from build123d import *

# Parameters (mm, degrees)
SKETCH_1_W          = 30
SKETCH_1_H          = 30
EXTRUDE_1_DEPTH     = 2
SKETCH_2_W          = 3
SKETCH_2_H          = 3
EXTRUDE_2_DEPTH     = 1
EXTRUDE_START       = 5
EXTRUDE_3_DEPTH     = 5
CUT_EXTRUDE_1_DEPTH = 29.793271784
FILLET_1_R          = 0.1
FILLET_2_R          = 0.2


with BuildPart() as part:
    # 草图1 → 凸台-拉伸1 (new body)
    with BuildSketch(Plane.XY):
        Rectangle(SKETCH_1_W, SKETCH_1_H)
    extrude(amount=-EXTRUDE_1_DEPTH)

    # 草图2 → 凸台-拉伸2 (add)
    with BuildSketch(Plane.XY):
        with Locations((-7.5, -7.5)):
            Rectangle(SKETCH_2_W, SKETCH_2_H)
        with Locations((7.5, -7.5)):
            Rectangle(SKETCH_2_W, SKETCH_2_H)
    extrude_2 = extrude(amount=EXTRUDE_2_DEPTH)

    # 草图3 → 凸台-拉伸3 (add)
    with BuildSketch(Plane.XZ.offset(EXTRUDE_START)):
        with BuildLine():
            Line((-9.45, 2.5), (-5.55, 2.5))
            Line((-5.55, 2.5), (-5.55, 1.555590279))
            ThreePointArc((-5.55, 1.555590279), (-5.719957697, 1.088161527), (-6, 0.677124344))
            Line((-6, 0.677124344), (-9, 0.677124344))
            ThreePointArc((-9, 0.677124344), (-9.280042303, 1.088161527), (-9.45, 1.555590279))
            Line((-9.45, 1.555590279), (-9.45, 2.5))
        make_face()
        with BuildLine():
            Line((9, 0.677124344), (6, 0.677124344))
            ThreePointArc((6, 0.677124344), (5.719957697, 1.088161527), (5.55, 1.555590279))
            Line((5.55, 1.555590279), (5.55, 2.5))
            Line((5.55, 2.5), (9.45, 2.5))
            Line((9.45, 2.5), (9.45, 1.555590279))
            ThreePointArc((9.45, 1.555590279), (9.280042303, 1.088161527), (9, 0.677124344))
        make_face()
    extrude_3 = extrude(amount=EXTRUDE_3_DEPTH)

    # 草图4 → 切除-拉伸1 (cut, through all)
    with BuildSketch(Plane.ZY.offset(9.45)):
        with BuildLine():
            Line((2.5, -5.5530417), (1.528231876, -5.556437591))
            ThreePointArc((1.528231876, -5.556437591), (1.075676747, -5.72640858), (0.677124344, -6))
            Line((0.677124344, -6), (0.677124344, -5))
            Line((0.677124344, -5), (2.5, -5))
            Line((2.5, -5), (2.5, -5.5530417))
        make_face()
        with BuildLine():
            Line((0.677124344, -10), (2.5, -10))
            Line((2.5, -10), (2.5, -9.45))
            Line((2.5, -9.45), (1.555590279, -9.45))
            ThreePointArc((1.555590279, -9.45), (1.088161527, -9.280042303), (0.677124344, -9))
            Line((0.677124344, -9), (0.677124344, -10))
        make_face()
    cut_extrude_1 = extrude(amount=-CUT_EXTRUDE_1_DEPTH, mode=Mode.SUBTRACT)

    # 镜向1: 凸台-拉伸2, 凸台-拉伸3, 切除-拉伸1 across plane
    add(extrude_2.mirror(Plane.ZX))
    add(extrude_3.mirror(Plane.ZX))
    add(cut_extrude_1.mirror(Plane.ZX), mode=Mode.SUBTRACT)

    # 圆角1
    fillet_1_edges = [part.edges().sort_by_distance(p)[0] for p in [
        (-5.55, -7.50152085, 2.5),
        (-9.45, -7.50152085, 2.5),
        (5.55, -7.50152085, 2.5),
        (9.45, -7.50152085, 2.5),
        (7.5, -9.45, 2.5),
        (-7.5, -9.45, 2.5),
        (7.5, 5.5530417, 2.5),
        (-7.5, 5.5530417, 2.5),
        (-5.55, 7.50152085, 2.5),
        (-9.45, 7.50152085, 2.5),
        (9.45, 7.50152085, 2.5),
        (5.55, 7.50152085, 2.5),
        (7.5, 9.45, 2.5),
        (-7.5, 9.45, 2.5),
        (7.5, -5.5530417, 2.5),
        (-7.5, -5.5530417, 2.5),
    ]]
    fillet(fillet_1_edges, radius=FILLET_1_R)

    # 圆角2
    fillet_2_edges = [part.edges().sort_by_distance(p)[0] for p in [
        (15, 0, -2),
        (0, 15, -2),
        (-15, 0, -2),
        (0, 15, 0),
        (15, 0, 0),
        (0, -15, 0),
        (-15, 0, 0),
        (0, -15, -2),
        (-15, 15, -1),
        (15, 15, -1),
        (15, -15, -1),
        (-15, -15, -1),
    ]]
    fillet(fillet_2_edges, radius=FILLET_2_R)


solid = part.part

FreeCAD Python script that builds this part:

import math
import FreeCAD as App
import Part
import Sketcher
Q = App.Units.Quantity


def edges_at(feature, points):
    """Names of the edges that pass closest to the given points."""
    edges = feature.Shape.Edges
    near = lambda p: min(range(len(edges)), key=lambda i: edges[i].distToShape(Part.Vertex(*p))[0])
    return sorted({f"Edge{near(p) + 1}" for p in points})


def add_polygon(sketch, points):
    """Adds a closed chain of lines whose ends are joined by coincident constraints."""
    first, n = sketch.GeometryCount, len(points)
    for a, b in zip(points, points[1:] + points[:1]):
        sketch.addGeometry(Part.LineSegment(App.Vector(*a, 0), App.Vector(*b, 0)), False)
    for i in range(n):
        sketch.addConstraint(Sketcher.Constraint("Coincident", first + i, 2, first + (i + 1) % n, 1))

doc = App.newDocument("Part")
body = doc.addObject("PartDesign::Body", "Body")

# Sketch on XY plane
sketch1 = body.newObject("Sketcher::SketchObject", "Sketch")
sketch1.AttachmentSupport = (doc.getObject("XY_Plane"), [""])
sketch1.MapMode = "FlatFace"
add_polygon(sketch1, [(-15, 15), (-15, -15), (15, -15), (15, 15)])  # lines 0-3
sketch1.addConstraint([
    Sketcher.Constraint("Vertical", 0),
    Sketcher.Constraint("Horizontal", 1),
    Sketcher.Constraint("Vertical", 2),
    Sketcher.Constraint("Horizontal", 3),
    Sketcher.Constraint("Symmetric", 0, 2, 2, 2, -1, 1),
    Sketcher.Constraint("Equal", 3, 0),
    Sketcher.Constraint("DistanceX", 1, 1, 1, 2, Q("30 mm")),
])
pad1 = body.newObject("PartDesign::Pad", "Pad")
pad1.Profile = sketch1
pad1.Length = 2
pad1.Reversed = True

# Sketch on XY plane
sketch2 = body.newObject("Sketcher::SketchObject", "Sketch001")
sketch2.AttachmentSupport = (doc.getObject("XY_Plane"), [""])
sketch2.MapMode = "FlatFace"
add_polygon(sketch2, [(-9, -6), (-9, -9), (-6, -9), (-6, -6)])  # lines 0-3
add_polygon(sketch2, [(6, -6), (6, -9), (9, -9), (9, -6)])  # lines 4-7
sketch2.addConstraint([
    Sketcher.Constraint("Vertical", 0),
    Sketcher.Constraint("Horizontal", 1),
    Sketcher.Constraint("Vertical", 2),
    Sketcher.Constraint("Horizontal", 3),
    Sketcher.Constraint("Vertical", 4),
    Sketcher.Constraint("Horizontal", 5),
    Sketcher.Constraint("Vertical", 6),
    Sketcher.Constraint("Horizontal", 7),
    Sketcher.Constraint("Symmetric", 1, 2, 4, 2, -2),
    Sketcher.Constraint("Symmetric", 3, 2, 6, 2, -2),
    Sketcher.Constraint("Equal", 7, 0),
    Sketcher.Constraint("DistanceX", 1, 1, 1, 2, Q("3 mm")),
    Sketcher.Constraint("DistanceX", 0, 2, -1, 1, Q("9 mm")),
    Sketcher.Constraint("DistanceY", 0, 2, -1, 1, Q("9 mm")),
])
pad2 = body.newObject("PartDesign::Pad", "Pad001")
pad2.Profile = sketch2
pad2.Length = 1

# Sketch on XZ plane
sketch3 = body.newObject("Sketcher::SketchObject", "Sketch002")
sketch3.AttachmentSupport = (doc.getObject("XZ_Plane"), [""])
sketch3.MapMode = "FlatFace"
sketch3.AttachmentOffset = App.Placement(App.Vector(0, 0, 5), App.Rotation())
sketch3.addGeometry([
    Part.LineSegment(App.Vector(-5.55, 2.5, 0), App.Vector(-9.45, 2.5, 0)),  # 0
    Part.LineSegment(App.Vector(-9.45, 2.5, 0), App.Vector(-9.45, 1.55559, 0)),  # 1
    Part.ArcOfCircle(Part.Circle(App.Vector(-7.5, 2, 0), App.Vector(0, 0, 1), 2), math.radians(-167.161432), math.radians(-138.590378)),  # 2
    Part.LineSegment(App.Vector(-9, 0.677124, 0), App.Vector(-6, 0.677124, 0)),  # 3
    Part.ArcOfCircle(Part.Circle(App.Vector(-7.5, 2, 0), App.Vector(0, 0, 1), 2), math.radians(-41.409622), math.radians(-12.838568)),  # 4
    Part.LineSegment(App.Vector(-5.55, 1.55559, 0), App.Vector(-5.55, 2.5, 0)),  # 5
    Part.LineSegment(App.Vector(6, 0.677124, 0), App.Vector(9, 0.677124, 0)),  # 6
    Part.ArcOfCircle(Part.Circle(App.Vector(7.5, 2, 0), App.Vector(0, 0, 1), 2), math.radians(-41.409622), math.radians(-12.838568)),  # 7
    Part.LineSegment(App.Vector(9.45, 1.55559, 0), App.Vector(9.45, 2.5, 0)),  # 8
    Part.LineSegment(App.Vector(9.45, 2.5, 0), App.Vector(5.55, 2.5, 0)),  # 9
    Part.LineSegment(App.Vector(5.55, 2.5, 0), App.Vector(5.55, 1.55559, 0)),  # 10
    Part.ArcOfCircle(Part.Circle(App.Vector(7.5, 2, 0), App.Vector(0, 0, 1), 2), math.radians(-167.161432), math.radians(-138.590378)),  # 11
], False)
sketch3.addConstraint([
    Sketcher.Constraint("Coincident", 0, 2, 1, 1),
    Sketcher.Constraint("Coincident", 1, 2, 2, 1),
    Sketcher.Constraint("Coincident", 2, 2, 3, 1),
    Sketcher.Constraint("Coincident", 3, 2, 4, 1),
    Sketcher.Constraint("Coincident", 4, 2, 5, 1),
    Sketcher.Constraint("Coincident", 5, 2, 0, 1),
    Sketcher.Constraint("Coincident", 6, 2, 7, 1),
    Sketcher.Constraint("Coincident", 7, 2, 8, 1),
    Sketcher.Constraint("Coincident", 8, 2, 9, 1),
    Sketcher.Constraint("Coincident", 9, 2, 10, 1),
    Sketcher.Constraint("Coincident", 10, 2, 11, 1),
    Sketcher.Constraint("Coincident", 11, 2, 6, 1),
    Sketcher.Constraint("Horizontal", 0),
    Sketcher.Constraint("Vertical", 1),
    Sketcher.Constraint("Horizontal", 3),
    Sketcher.Constraint("Vertical", 5),
    Sketcher.Constraint("Horizontal", 6),
    Sketcher.Constraint("Vertical", 8),
    Sketcher.Constraint("Horizontal", 9),
    Sketcher.Constraint("Vertical", 10),
    Sketcher.Constraint("Coincident", 4, 3, 2, 3),
    Sketcher.Constraint("Coincident", 11, 3, 7, 3),
    Sketcher.Constraint("Equal", 2, 4),
    Sketcher.Constraint("Equal", 4, 7),
    Sketcher.Constraint("Equal", 7, 11),
    Sketcher.Constraint("Symmetric", 2, 3, 7, 3, -2),
    Sketcher.Constraint("Symmetric", 0, 2, 8, 2, -2),
    Sketcher.Constraint("Horizontal", 1, 2, 4, 2),
    Sketcher.Constraint("Horizontal", 3, 2, 6, 2),
    Sketcher.Constraint("Horizontal", 7, 2, 10, 2),
    Sketcher.Constraint("Radius", 2, Q("2 mm")),
    Sketcher.Constraint("DistanceX", 3, 1, 3, 2, Q("3 mm")),
    Sketcher.Constraint("DistanceX", 0, 2, 0, 1, Q("3.9 mm")),
    Sketcher.Constraint("DistanceY", -1, 1, 2, 3, Q("2 mm")),
    Sketcher.Constraint("DistanceX", 2, 2, -1, 1, Q("9 mm")),
    Sketcher.Constraint("DistanceY", -1, 1, 0, 2, Q("2.5 mm")),
])
pad3 = body.newObject("PartDesign::Pad", "Pad002")
pad3.Profile = sketch3
pad3.Length = 5

# Sketch on YZ plane
sketch4 = body.newObject("Sketcher::SketchObject", "Sketch003")
sketch4.AttachmentSupport = (doc.getObject("YZ_Plane"), [""])
sketch4.MapMode = "FlatFace"
sketch4.AttachmentOffset = App.Placement(App.Vector(0, 0, -9.45), App.Rotation())
sketch4.addGeometry([
    Part.LineSegment(App.Vector(-5.556438, 1.528232, 0), App.Vector(-5.553042, 2.5, 0)),  # 0
    Part.LineSegment(App.Vector(-5.553042, 2.5, 0), App.Vector(-5, 2.5, 0)),  # 1
    Part.LineSegment(App.Vector(-5, 2.5, 0), App.Vector(-5, 0.677124, 0)),  # 2
    Part.LineSegment(App.Vector(-5, 0.677124, 0), App.Vector(-6, 0.677124, 0)),  # 3
    Part.ArcOfCircle(Part.Circle(App.Vector(-7.5, 2, 0), App.Vector(0, 0, 1), 2), math.radians(-41.409622), math.radians(-13.643741)),  # 4
    Part.LineSegment(App.Vector(-10, 0.677124, 0), App.Vector(-10, 2.5, 0)),  # 5
    Part.LineSegment(App.Vector(-10, 2.5, 0), App.Vector(-9.45, 2.5, 0)),  # 6
    Part.LineSegment(App.Vector(-9.45, 2.5, 0), App.Vector(-9.45, 1.55559, 0)),  # 7
    Part.ArcOfCircle(Part.Circle(App.Vector(-7.5, 2, 0), App.Vector(0, 0, 1), 2), math.radians(-167.161432), math.radians(-138.590378)),  # 8
    Part.LineSegment(App.Vector(-9, 0.677124, 0), App.Vector(-10, 0.677124, 0)),  # 9
], False)
sketch4.addConstraint([
    Sketcher.Constraint("Coincident", 0, 2, 1, 1),
    Sketcher.Constraint("Coincident", 1, 2, 2, 1),
    Sketcher.Constraint("Coincident", 2, 2, 3, 1),
    Sketcher.Constraint("Coincident", 3, 2, 4, 1),
    Sketcher.Constraint("Coincident", 4, 2, 0, 1),
    Sketcher.Constraint("Coincident", 5, 2, 6, 1),
    Sketcher.Constraint("Coincident", 6, 2, 7, 1),
    Sketcher.Constraint("Coincident", 7, 2, 8, 1),
    Sketcher.Constraint("Coincident", 8, 2, 9, 1),
    Sketcher.Constraint("Coincident", 9, 2, 5, 1),
    Sketcher.Constraint("Horizontal", 1),
    Sketcher.Constraint("Vertical", 2),
    Sketcher.Constraint("Horizontal", 3),
    Sketcher.Constraint("Vertical", 5),
    Sketcher.Constraint("Horizontal", 6),
    Sketcher.Constraint("Vertical", 7),
    Sketcher.Constraint("Horizontal", 9),
    Sketcher.Constraint("Coincident", 8, 3, 4, 3),
    Sketcher.Constraint("Equal", 4, 8),
    Sketcher.Constraint("Horizontal", 1, 2, 5, 2),
    Sketcher.Constraint("Horizontal", 3, 2, 8, 2),
    Sketcher.Constraint("Equal", 3, 9),
    Sketcher.Constraint("Radius", 4, Q("2 mm")),
    Sketcher.Constraint("DistanceX", 3, 2, 3, 1, Q("1 mm")),
    Sketcher.Constraint("DistanceY", -1, 1, 4, 3, Q("2 mm")),
    Sketcher.Constraint("DistanceX", 1, 2, -1, 1, Q("5 mm")),
    Sketcher.Constraint("DistanceX", 5, 2, -1, 1, Q("10 mm")),
    Sketcher.Constraint("DistanceX", 6, 1, 6, 2, Q("0.55 mm")),
    Sketcher.Constraint("DistanceY", -1, 1, 0, 2, Q("2.5 mm")),
    Sketcher.Constraint("DistanceX", 1, 1, 1, 2, Q("0.553042 mm")),
    Sketcher.Constraint("DistanceY", -1, 1, 4, 2, Q("1.528232 mm")),
])
pocket1 = body.newObject("PartDesign::Pocket", "Pocket")
pocket1.Profile = sketch4
pocket1.Type = "ThroughAll"
pocket1.Reversed = True
doc.recompute()

mirrored = body.newObject("PartDesign::Mirrored", "Mirrored")
mirrored.Originals = [pad2, pad3, pocket1]
mirrored.MirrorPlane = (doc.getObject("XZ_Plane"), [""])
body.Tip = mirrored
doc.recompute()

fillet = body.newObject("PartDesign::Fillet", "Fillet")
fillet.Base = (mirrored, edges_at(mirrored, [
    (-5.55, -7.502, 2.5),
    (-9.45, -7.502, 2.5),
    (5.55, -7.502, 2.5),
    (9.45, -7.502, 2.5),
    (7.5, -9.45, 2.5),
    (-7.5, -9.45, 2.5),
    (7.5, 5.553, 2.5),
    (-7.5, 5.553, 2.5),
    (-5.55, 7.502, 2.5),
    (-9.45, 7.502, 2.5),
    (9.45, 7.502, 2.5),
    (5.55, 7.502, 2.5),
    (7.5, 9.45, 2.5),
    (-7.5, 9.45, 2.5),
    (7.5, -5.553, 2.5),
    (-7.5, -5.553, 2.5),
]))
fillet.Radius = 0.1
doc.recompute()

fillet2 = body.newObject("PartDesign::Fillet", "Fillet001")
fillet2.Base = (fillet, edges_at(fillet, [
    (15, 0, -2),
    (0, 15, -2),
    (-15, 0, -2),
    (0, 15, 0),
    (15, 0, 0),
    (0, -15, 0),
    (-15, 0, 0),
    (0, -15, -2),
    (-15, 15, -1),
    (15, 15, -1),
    (15, -15, -1),
    (-15, -15, -1),
]))
fillet2.Radius = 0.2

doc.recompute()
